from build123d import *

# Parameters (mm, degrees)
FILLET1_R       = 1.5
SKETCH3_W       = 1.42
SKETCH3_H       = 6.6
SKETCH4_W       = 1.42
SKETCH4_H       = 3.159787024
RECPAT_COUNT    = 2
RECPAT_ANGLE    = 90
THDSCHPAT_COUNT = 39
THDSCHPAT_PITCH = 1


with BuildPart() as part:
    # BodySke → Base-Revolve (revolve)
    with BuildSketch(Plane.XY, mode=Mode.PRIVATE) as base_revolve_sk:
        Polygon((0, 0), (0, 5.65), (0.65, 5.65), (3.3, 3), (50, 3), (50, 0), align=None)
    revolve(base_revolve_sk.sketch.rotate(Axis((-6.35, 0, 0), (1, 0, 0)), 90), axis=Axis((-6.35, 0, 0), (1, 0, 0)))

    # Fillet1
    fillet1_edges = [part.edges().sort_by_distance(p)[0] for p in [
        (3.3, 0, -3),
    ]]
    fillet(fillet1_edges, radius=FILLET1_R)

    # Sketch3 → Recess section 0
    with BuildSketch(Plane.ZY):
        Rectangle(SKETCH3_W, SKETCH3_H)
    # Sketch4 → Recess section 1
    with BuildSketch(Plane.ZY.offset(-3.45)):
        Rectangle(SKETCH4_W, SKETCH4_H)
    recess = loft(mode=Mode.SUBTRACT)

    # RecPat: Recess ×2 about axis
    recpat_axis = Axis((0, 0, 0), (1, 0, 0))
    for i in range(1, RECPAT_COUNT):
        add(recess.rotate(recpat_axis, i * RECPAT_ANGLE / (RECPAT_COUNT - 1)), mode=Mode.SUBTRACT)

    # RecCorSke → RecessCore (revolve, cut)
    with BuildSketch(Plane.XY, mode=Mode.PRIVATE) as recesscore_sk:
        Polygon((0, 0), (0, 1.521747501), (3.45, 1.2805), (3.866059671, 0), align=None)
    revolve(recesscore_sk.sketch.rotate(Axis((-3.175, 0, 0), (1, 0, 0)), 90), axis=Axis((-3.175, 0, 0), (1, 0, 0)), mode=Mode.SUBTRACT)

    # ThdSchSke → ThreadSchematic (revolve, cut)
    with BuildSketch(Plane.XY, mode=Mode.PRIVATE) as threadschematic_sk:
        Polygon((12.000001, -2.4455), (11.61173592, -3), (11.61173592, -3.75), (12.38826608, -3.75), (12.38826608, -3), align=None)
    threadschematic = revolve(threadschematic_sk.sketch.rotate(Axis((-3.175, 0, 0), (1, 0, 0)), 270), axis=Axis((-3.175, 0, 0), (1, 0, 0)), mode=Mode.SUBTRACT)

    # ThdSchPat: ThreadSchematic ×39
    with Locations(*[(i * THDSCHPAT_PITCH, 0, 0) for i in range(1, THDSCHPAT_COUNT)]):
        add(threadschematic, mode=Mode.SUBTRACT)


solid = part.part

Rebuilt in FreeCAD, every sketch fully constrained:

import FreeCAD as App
import Part
import Sketcher
from FreeCAD import Vector
Q = App.Units.Quantity


def edges_at(feature, points):
    """Names of the edges that pass closest to the given points."""
    edges = feature.Shape.Edges
    near = lambda p: min(range(len(edges)), key=lambda i: edges[i].distToShape(Part.Vertex(*p))[0])
    return sorted({f"Edge{near(p) + 1}" for p in points})

doc = App.newDocument("Part")
params = doc.addObject("Spreadsheet::Sheet", "Params")
for row, (alias, value) in enumerate([
    ("sketch1_width", "50 mm"),
    ("sketch1_height", "3 mm"),
    ("sketch1_width2", "46.7 mm"),
    ("sketch1_width3", "0.65 mm"),
    ("revolution_angle", "360 deg"),
    ("fillet_radius", "1.5 mm"),
    ("sketch2_width", "6.6 mm"),
    ("sketch2_height", "1.42 mm"),
    ("sketch3_height", "1.42 mm"),
    ("groove_angle", "360 deg"),
    ("sketch5_height", "0.75 mm"),
    ("groove2_angle", "360 deg"),
    ("linearpattern_pitch", "1 mm"),
], start=1):
    params.set(f"A{row}", alias)
    params.set(f"B{row}", "=" + value)
    params.setAlias(f"B{row}", alias)

body = doc.addObject("PartDesign::Body", "Body")

# Sketch on XY plane
sketch1 = body.newObject("Sketcher::SketchObject", "Sketch")
sketch1.AttachmentSupport = (doc.getObject("XY_Plane"), [""])
sketch1.MapMode = "FlatFace"
sketch1.addGeometry([
    Part.LineSegment(Vector(0, 5.7, 0), Vector(0, 0, 0)),  # 0
    Part.LineSegment(Vector(0, 0, 0), Vector(50, 0, 0)),  # 1
    Part.LineSegment(Vector(50, 0, 0), Vector(50, 3, 0)),  # 2
    Part.LineSegment(Vector(50, 3, 0), Vector(3.3, 3, 0)),  # 3
    Part.LineSegment(Vector(3.3, 3, 0), Vector(0.7, 5.7, 0)),  # 4
    Part.LineSegment(Vector(0.7, 5.7, 0), Vector(0, 5.7, 0)),  # 5
], False)
sketch1.addConstraint([
    Sketcher.Constraint("Coincident", 0, 2, 1, 1),
    Sketcher.Constraint("Coincident", 1, 2, 2, 1),
    Sketcher.Constraint("Coincident", 2, 2, 3, 1),
    Sketcher.Constraint("Coincident", 3, 2, 4, 1),
    Sketcher.Constraint("Coincident", 4, 2, 5, 1),
    Sketcher.Constraint("Coincident", 5, 2, 0, 1),
    Sketcher.Constraint("Vertical", 0),
    Sketcher.Constraint("Horizontal", 1),
    Sketcher.Constraint("Vertical", 2),
    Sketcher.Constraint("Horizontal", 3),
    Sketcher.Constraint("Horizontal", 5),
    Sketcher.Constraint("Coincident", 0, 2, -1, 1),
    Sketcher.Constraint("DistanceX", 1, 1, 1, 2, 50.0),
    Sketcher.Constraint("DistanceY", 2, 1, 2, 2, 3.0),
    Sketcher.Constraint("Angle", 4, Q("135 deg")),
    Sketcher.Constraint("DistanceX", 3, 2, 3, 1, 46.7),
    Sketcher.Constraint("DistanceX", 5, 2, 5, 1, 0.65),
])
sketch1.setExpression("Constraints[12]", "Params.sketch1_width")
sketch1.setExpression("Constraints[13]", "Params.sketch1_height")
sketch1.setExpression("Constraints[15]", "Params.sketch1_width2")
sketch1.setExpression("Constraints[16]", "Params.sketch1_width3")
revolution = body.newObject("PartDesign::Revolution", "Revolution")
revolution.Profile = sketch1
revolution.ReferenceAxis = (sketch1, ["H_Axis"])
revolution.setExpression("Angle", "Params.revolution_angle")
doc.recompute()

fillet = body.newObject("PartDesign::Fillet", "Fillet")
fillet.Base = (revolution, edges_at(revolution, [(3.3, 0, -3)]))
fillet.setExpression("Radius", "Params.fillet_radius")

# Sketch on YZ plane
sketch2 = body.newObject("Sketcher::SketchObject", "Sketch001")
sketch2.AttachmentSupport = (doc.getObject("YZ_Plane"), [""])
sketch2.MapMode = "FlatFace"
sketch2.addGeometry([
    Part.LineSegment(Vector(3.3, -0.7, 0), Vector(-3.3, -0.7, 0)),
    Part.LineSegment(Vector(-3.3, -0.7, 0), Vector(-3.3, 0.7, 0)),
    Part.LineSegment(Vector(-3.3, 0.7, 0), Vector(3.3, 0.7, 0)),
    Part.LineSegment(Vector(3.3, 0.7, 0), Vector(3.3, -0.7, 0)),
], False)
sketch2.addConstraint([
    Sketcher.Constraint("Coincident", 0, 2, 1, 1),
    Sketcher.Constraint("Coincident", 1, 2, 2, 1),
    Sketcher.Constraint("Coincident", 2, 2, 3, 1),
    Sketcher.Constraint("Coincident", 3, 2, 0, 1),
    Sketcher.Constraint("Horizontal", 0),
    Sketcher.Constraint("Vertical", 1),
    Sketcher.Constraint("Horizontal", 2),
    Sketcher.Constraint("Vertical", 3),
    Sketcher.Constraint("Symmetric", 0, 2, 2, 2, -1, 1),
    Sketcher.Constraint("DistanceX", 0, 2, 0, 1, 6.6),
    Sketcher.Constraint("DistanceY", 1, 1, 1, 2, 1.42),
])
sketch2.setExpression("Constraints[9]", "Params.sketch2_width")
sketch2.setExpression("Constraints[10]", "Params.sketch2_height")

# Sketch on YZ plane
sketch3 = body.newObject("Sketcher::SketchObject", "Sketch002")
sketch3.AttachmentSupport = (doc.getObject("YZ_Plane"), [""])
sketch3.MapMode = "FlatFace"
sketch3.AttachmentOffset = App.Placement(Vector(0, 0, 3.45), App.Rotation())
sketch3.addGeometry([
    Part.LineSegment(Vector(1.6, -0.7, 0), Vector(-1.6, -0.7, 0)),
    Part.LineSegment(Vector(-1.6, -0.7, 0), Vector(-1.6, 0.7, 0)),
    Part.LineSegment(Vector(-1.6, 0.7, 0), Vector(1.6, 0.7, 0)),
    Part.LineSegment(Vector(1.6, 0.7, 0), Vector(1.6, -0.7, 0)),
], False)
sketch3.addConstraint([
    Sketcher.Constraint("Coincident", 0, 2, 1, 1),
    Sketcher.Constraint("Coincident", 1, 2, 2, 1),
    Sketcher.Constraint("Coincident", 2, 2, 3, 1),
    Sketcher.Constraint("Coincident", 3, 2, 0, 1),
    Sketcher.Constraint("Horizontal", 0),
    Sketcher.Constraint("Vertical", 1),
    Sketcher.Constraint("Horizontal", 2),
    Sketcher.Constraint("Vertical", 3),
    Sketcher.Constraint("Symmetric", 0, 2, 2, 2, -1, 1),
    Sketcher.Constraint("DistanceY", 1, 1, 1, 2, 1.42),
    Sketcher.Constraint("DistanceX", 0, 2, 0, 1, 3.159787),
])
sketch3.setExpression("Constraints[9]", "Params.sketch3_height")

subtractiveloft = body.newObject("PartDesign::SubtractiveLoft", "SubtractiveLoft")
subtractiveloft.Profile = sketch2
subtractiveloft.Sections = [sketch3]
doc.recompute()

polarpattern = body.newObject("PartDesign::PolarPattern", "PolarPattern")
polarpattern.Originals = [subtractiveloft]
polarpattern.Axis = (doc.getObject("X_Axis"), [""])
polarpattern.Angle = 90
polarpattern.Occurrences = 2
body.Tip = polarpattern

# Sketch on XY plane
sketch4 = body.newObject("Sketcher::SketchObject", "Sketch003")
sketch4.AttachmentSupport = (doc.getObject("XY_Plane"), [""])
sketch4.MapMode = "FlatFace"
sketch4.addGeometry([
    Part.LineSegment(Vector(0, 1.5, 0), Vector(0, 0, 0)),
    Part.LineSegment(Vector(0, 0, 0), Vector(3.9, 0, 0)),
    Part.LineSegment(Vector(3.9, 0, 0), Vector(3.5, 1.3, 0)),
    Part.LineSegment(Vector(3.5, 1.3, 0), Vector(0, 1.5, 0)),
], False)
sketch4.addConstraint([
    Sketcher.Constraint("Coincident", 0, 2, 1, 1),
    Sketcher.Constraint("Coincident", 1, 2, 2, 1),
    Sketcher.Constraint("Coincident", 2, 2, 3, 1),
    Sketcher.Constraint("Coincident", 3, 2, 0, 1),
    Sketcher.Constraint("Vertical", 0),
    Sketcher.Constraint("Horizontal", 1),
    Sketcher.Constraint("Coincident", 0, 2, -1, 1),
    Sketcher.Constraint("Angle", 2, Q("108 deg")),
    Sketcher.Constraint("Angle", 3, Q("176 deg")),
    Sketcher.Constraint("DistanceX", -1, 1, 2, 2, 3.45),
    Sketcher.Constraint("DistanceX", 1, 1, 1, 2, 3.86606),
])
groove = body.newObject("PartDesign::Groove", "Groove")
groove.Profile = sketch4
groove.ReferenceAxis = (sketch4, ["H_Axis"])
groove.setExpression("Angle", "Params.groove_angle")

# Sketch on XY plane
sketch5 = body.newObject("Sketcher::SketchObject", "Sketch004")
sketch5.AttachmentSupport = (doc.getObject("XY_Plane"), [""])
sketch5.MapMode = "FlatFace"
sketch5.addGeometry([
    Part.LineSegment(Vector(12, -2.4, 0), Vector(11.6, -3, 0)),  # 0
    Part.LineSegment(Vector(11.6, -3, 0), Vector(11.6, -3.8, 0)),  # 1
    Part.LineSegment(Vector(11.6, -3.8, 0), Vector(12.4, -3.8, 0)),  # 2
    Part.LineSegment(Vector(12.4, -3.8, 0), Vector(12.4, -3, 0)),  # 3
    Part.LineSegment(Vector(12.4, -3, 0), Vector(12, -2.4, 0)),  # 4
], False)
sketch5.addConstraint([
    Sketcher.Constraint("Coincident", 0, 2, 1, 1),
    Sketcher.Constraint("Coincident", 1, 2, 2, 1),
    Sketcher.Constraint("Coincident", 2, 2, 3, 1),
    Sketcher.Constraint("Coincident", 3, 2, 4, 1),
    Sketcher.Constraint("Coincident", 4, 2, 0, 1),
    Sketcher.Constraint("Vertical", 1),
    Sketcher.Constraint("Horizontal", 2),
    Sketcher.Constraint("Vertical", 3),
    Sketcher.Constraint("Horizontal", 0, 2, 3, 2),
    Sketcher.Constraint("Equal", 0, 4),
    Sketcher.Constraint("Angle", 0, Q("-125 deg")),
    Sketcher.Constraint("DistanceY", 0, 2, -1, 1, 3.0),
    Sketcher.Constraint("DistanceX", -1, 1, 4, 2, 12.000001),
    Sketcher.Constraint("DistanceY", 1, 2, 1, 1, 0.75),
    Sketcher.Constraint("DistanceX", 2, 1, 2, 2, 0.77653),
])
sketch5.setExpression("Constraints[13]", "Params.sketch5_height")
groove2 = body.newObject("PartDesign::Groove", "Groove001")
groove2.Profile = sketch5
groove2.ReferenceAxis = (sketch5, ["H_Axis"])
groove2.setExpression("Angle", "Params.groove2_angle")
doc.recompute()

linearpattern = body.newObject("PartDesign::LinearPattern", "LinearPattern")
linearpattern.Originals = [groove2]
linearpattern.Direction = (doc.getObject("X_Axis"), [""])
linearpattern.Mode = "offset"
linearpattern.setExpression("Offset", "Params.linearpattern_pitch")
linearpattern.Occurrences = 39
body.Tip = linearpattern

doc.recompute()
